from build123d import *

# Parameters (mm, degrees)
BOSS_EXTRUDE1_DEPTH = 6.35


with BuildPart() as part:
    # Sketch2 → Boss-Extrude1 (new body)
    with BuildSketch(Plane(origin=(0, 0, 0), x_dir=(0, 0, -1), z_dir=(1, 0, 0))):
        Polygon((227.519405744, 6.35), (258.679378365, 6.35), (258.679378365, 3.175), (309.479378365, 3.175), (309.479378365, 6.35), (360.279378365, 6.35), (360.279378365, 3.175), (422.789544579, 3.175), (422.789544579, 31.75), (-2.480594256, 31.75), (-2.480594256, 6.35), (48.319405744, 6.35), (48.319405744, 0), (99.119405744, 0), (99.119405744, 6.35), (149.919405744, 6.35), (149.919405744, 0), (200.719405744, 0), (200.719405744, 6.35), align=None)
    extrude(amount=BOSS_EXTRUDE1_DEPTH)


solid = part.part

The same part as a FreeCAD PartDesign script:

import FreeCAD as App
import Part
import Sketcher
Q = App.Units.Quantity

doc = App.newDocument("Part")
params = doc.addObject("Spreadsheet::Sheet", "Params")
for row, (alias, value) in enumerate([
    ("sketch1_width", "1 in"),
    ("sketch1_height", "2 in"),
    ("sketch1_width2", "0.25 in"),
    ("sketch1_width3", "0.125 in"),
    ("pad1_length", "0.25 in"),
], start=1):
    params.set(f"A{row}", alias)
    params.set(f"B{row}", "=" + value)
    params.setAlias(f"B{row}", alias)

body = doc.addObject("PartDesign::Body", "Body")

# Sketch on YZ plane
sketch1 = doc.addObject("Sketcher::SketchObject", "Sketch")
body.addObject(sketch1)
sketch1.AttachmentSupport = (doc.YZ_Plane, [""])
sketch1.MapMode = "FlatFace"
sketch1.addGeometry([
    Part.LineSegment(App.Vector(6.35, -258.679378, 0), App.Vector(3.175, -258.679378, 0)),  # 0
    Part.LineSegment(App.Vector(3.175, -258.679378, 0), App.Vector(3.175, -309.479378, 0)),  # 1
    Part.LineSegment(App.Vector(3.175, -309.479378, 0), App.Vector(6.35, -309.479378, 0)),  # 2
    Part.LineSegment(App.Vector(6.35, -309.479378, 0), App.Vector(6.35, -360.279378, 0)),  # 3
    Part.LineSegment(App.Vector(6.35, -360.279378, 0), App.Vector(3.175, -360.279378, 0)),  # 4
    Part.LineSegment(App.Vector(3.175, -360.279378, 0), App.Vector(3.175, -422.789545, 0)),  # 5
    Part.LineSegment(App.Vector(3.175, -422.789545, 0), App.Vector(31.75, -422.789545, 0)),  # 6
    Part.LineSegment(App.Vector(31.75, -422.789545, 0), App.Vector(31.75, 2.480594, 0)),  # 7
    Part.LineSegment(App.Vector(31.75, 2.480594, 0), App.Vector(6.35, 2.480594, 0)),  # 8
    Part.LineSegment(App.Vector(6.35, 2.480594, 0), App.Vector(6.35, -48.319406, 0)),  # 9
    Part.LineSegment(App.Vector(6.35, -48.319406, 0), App.Vector(0, -48.319406, 0)),  # 10
    Part.LineSegment(App.Vector(0, -48.319406, 0), App.Vector(0, -99.119406, 0)),  # 11
    Part.LineSegment(App.Vector(0, -99.119406, 0), App.Vector(6.35, -99.119406, 0)),  # 12
    Part.LineSegment(App.Vector(6.35, -99.119406, 0), App.Vector(6.35, -149.919406, 0)),  # 13
    Part.LineSegment(App.Vector(6.35, -149.919406, 0), App.Vector(0, -149.919406, 0)),  # 14
    Part.LineSegment(App.Vector(0, -149.919406, 0), App.Vector(0, -200.719406, 0)),  # 15
    Part.LineSegment(App.Vector(0, -200.719406, 0), App.Vector(6.35, -200.719406, 0)),  # 16
    Part.LineSegment(App.Vector(6.35, -200.719406, 0), App.Vector(6.35, -258.679378, 0)),  # 17
], False)
sketch1.addConstraint([
    Sketcher.Constraint("Coincident", 0, 2, 1, 1),
    Sketcher.Constraint("Coincident", 1, 2, 2, 1),
    Sketcher.Constraint("Coincident", 2, 2, 3, 1),
    Sketcher.Constraint("Coincident", 3, 2, 4, 1),
    Sketcher.Constraint("Coincident", 4, 2, 5, 1),
    Sketcher.Constraint("Coincident", 5, 2, 6, 1),
    Sketcher.Constraint("Coincident", 6, 2, 7, 1),
    Sketcher.Constraint("Coincident", 7, 2, 8, 1),
    Sketcher.Constraint("Coincident", 8, 2, 9, 1),
    Sketcher.Constraint("Coincident", 9, 2, 10, 1),
    Sketcher.Constraint("Coincident", 10, 2, 11, 1),
    Sketcher.Constraint("Coincident", 11, 2, 12, 1),
    Sketcher.Constraint("Coincident", 12, 2, 13, 1),
    Sketcher.Constraint("Coincident", 13, 2, 14, 1),
    Sketcher.Constraint("Coincident", 14, 2, 15, 1),
    Sketcher.Constraint("Coincident", 15, 2, 16, 1),
    Sketcher.Constraint("Coincident", 16, 2, 17, 1),
    Sketcher.Constraint("Coincident", 17, 2, 0, 1),
    Sketcher.Constraint("Horizontal", 0),
    Sketcher.Constraint("Vertical", 1),
    Sketcher.Constraint("Horizontal", 2),
    Sketcher.Constraint("Vertical", 3),
    Sketcher.Constraint("Horizontal", 4),
    Sketcher.Constraint("Vertical", 5),
    Sketcher.Constraint("Horizontal", 6),
    Sketcher.Constraint("Vertical", 7),
    Sketcher.Constraint("Horizontal", 8),
    Sketcher.Constraint("Vertical", 9),
    Sketcher.Constraint("Horizontal", 10),
    Sketcher.Constraint("Vertical", 11),
    Sketcher.Constraint("Horizontal", 12),
    Sketcher.Constraint("Vertical", 13),
    Sketcher.Constraint("Horizontal", 14),
    Sketcher.Constraint("Vertical", 15),
    Sketcher.Constraint("Horizontal", 16),
    Sketcher.Constraint("Vertical", 17),
    Sketcher.Constraint("PointOnObject", 10, 2, -2),
    Sketcher.Constraint("PointOnObject", 14, 2, -2),
    Sketcher.Constraint("Vertical", 1, 2, 4, 2),
    Sketcher.Constraint("Vertical", 3, 2, 8, 2),
    Sketcher.Constraint("Vertical", 9, 2, 12, 2),
    Sketcher.Constraint("Vertical", 13, 2, 16, 2),
    Sketcher.Constraint("Equal", 1, 3),
    Sketcher.Constraint("Equal", 3, 9),
    Sketcher.Constraint("Equal", 9, 11),
    Sketcher.Constraint("Equal", 11, 13),
    Sketcher.Constraint("Equal", 13, 15),
    Sketcher.Constraint("DistanceX", 8, 2, 8, 1, Q("1 in")),
    Sketcher.Constraint("DistanceY", 1, 2, 1, 1, Q("2 in")),
    Sketcher.Constraint("DistanceX", 10, 2, 10, 1, Q("0.25 in")),
    Sketcher.Constraint("DistanceX", 0, 2, 0, 1, Q("0.125 in")),
    Sketcher.Constraint("DistanceY", 7, 1, 7, 2, 425.270139),
    Sketcher.Constraint("DistanceY", 5, 2, 5, 1, 62.510166),
    Sketcher.Constraint("DistanceY", 0, 2, -1, 1, 258.679378),
])
sketch1.setExpression("Constraints[47]", "Params.sketch1_width")
sketch1.setExpression("Constraints[48]", "Params.sketch1_height")
sketch1.setExpression("Constraints[49]", "Params.sketch1_width2")
sketch1.setExpression("Constraints[50]", "Params.sketch1_width3")
pad1 = doc.addObject("PartDesign::Pad", "Pad")
body.addObject(pad1)
pad1.Profile = sketch1
pad1.setExpression("Length", "Params.pad1_length")

doc.recompute()
